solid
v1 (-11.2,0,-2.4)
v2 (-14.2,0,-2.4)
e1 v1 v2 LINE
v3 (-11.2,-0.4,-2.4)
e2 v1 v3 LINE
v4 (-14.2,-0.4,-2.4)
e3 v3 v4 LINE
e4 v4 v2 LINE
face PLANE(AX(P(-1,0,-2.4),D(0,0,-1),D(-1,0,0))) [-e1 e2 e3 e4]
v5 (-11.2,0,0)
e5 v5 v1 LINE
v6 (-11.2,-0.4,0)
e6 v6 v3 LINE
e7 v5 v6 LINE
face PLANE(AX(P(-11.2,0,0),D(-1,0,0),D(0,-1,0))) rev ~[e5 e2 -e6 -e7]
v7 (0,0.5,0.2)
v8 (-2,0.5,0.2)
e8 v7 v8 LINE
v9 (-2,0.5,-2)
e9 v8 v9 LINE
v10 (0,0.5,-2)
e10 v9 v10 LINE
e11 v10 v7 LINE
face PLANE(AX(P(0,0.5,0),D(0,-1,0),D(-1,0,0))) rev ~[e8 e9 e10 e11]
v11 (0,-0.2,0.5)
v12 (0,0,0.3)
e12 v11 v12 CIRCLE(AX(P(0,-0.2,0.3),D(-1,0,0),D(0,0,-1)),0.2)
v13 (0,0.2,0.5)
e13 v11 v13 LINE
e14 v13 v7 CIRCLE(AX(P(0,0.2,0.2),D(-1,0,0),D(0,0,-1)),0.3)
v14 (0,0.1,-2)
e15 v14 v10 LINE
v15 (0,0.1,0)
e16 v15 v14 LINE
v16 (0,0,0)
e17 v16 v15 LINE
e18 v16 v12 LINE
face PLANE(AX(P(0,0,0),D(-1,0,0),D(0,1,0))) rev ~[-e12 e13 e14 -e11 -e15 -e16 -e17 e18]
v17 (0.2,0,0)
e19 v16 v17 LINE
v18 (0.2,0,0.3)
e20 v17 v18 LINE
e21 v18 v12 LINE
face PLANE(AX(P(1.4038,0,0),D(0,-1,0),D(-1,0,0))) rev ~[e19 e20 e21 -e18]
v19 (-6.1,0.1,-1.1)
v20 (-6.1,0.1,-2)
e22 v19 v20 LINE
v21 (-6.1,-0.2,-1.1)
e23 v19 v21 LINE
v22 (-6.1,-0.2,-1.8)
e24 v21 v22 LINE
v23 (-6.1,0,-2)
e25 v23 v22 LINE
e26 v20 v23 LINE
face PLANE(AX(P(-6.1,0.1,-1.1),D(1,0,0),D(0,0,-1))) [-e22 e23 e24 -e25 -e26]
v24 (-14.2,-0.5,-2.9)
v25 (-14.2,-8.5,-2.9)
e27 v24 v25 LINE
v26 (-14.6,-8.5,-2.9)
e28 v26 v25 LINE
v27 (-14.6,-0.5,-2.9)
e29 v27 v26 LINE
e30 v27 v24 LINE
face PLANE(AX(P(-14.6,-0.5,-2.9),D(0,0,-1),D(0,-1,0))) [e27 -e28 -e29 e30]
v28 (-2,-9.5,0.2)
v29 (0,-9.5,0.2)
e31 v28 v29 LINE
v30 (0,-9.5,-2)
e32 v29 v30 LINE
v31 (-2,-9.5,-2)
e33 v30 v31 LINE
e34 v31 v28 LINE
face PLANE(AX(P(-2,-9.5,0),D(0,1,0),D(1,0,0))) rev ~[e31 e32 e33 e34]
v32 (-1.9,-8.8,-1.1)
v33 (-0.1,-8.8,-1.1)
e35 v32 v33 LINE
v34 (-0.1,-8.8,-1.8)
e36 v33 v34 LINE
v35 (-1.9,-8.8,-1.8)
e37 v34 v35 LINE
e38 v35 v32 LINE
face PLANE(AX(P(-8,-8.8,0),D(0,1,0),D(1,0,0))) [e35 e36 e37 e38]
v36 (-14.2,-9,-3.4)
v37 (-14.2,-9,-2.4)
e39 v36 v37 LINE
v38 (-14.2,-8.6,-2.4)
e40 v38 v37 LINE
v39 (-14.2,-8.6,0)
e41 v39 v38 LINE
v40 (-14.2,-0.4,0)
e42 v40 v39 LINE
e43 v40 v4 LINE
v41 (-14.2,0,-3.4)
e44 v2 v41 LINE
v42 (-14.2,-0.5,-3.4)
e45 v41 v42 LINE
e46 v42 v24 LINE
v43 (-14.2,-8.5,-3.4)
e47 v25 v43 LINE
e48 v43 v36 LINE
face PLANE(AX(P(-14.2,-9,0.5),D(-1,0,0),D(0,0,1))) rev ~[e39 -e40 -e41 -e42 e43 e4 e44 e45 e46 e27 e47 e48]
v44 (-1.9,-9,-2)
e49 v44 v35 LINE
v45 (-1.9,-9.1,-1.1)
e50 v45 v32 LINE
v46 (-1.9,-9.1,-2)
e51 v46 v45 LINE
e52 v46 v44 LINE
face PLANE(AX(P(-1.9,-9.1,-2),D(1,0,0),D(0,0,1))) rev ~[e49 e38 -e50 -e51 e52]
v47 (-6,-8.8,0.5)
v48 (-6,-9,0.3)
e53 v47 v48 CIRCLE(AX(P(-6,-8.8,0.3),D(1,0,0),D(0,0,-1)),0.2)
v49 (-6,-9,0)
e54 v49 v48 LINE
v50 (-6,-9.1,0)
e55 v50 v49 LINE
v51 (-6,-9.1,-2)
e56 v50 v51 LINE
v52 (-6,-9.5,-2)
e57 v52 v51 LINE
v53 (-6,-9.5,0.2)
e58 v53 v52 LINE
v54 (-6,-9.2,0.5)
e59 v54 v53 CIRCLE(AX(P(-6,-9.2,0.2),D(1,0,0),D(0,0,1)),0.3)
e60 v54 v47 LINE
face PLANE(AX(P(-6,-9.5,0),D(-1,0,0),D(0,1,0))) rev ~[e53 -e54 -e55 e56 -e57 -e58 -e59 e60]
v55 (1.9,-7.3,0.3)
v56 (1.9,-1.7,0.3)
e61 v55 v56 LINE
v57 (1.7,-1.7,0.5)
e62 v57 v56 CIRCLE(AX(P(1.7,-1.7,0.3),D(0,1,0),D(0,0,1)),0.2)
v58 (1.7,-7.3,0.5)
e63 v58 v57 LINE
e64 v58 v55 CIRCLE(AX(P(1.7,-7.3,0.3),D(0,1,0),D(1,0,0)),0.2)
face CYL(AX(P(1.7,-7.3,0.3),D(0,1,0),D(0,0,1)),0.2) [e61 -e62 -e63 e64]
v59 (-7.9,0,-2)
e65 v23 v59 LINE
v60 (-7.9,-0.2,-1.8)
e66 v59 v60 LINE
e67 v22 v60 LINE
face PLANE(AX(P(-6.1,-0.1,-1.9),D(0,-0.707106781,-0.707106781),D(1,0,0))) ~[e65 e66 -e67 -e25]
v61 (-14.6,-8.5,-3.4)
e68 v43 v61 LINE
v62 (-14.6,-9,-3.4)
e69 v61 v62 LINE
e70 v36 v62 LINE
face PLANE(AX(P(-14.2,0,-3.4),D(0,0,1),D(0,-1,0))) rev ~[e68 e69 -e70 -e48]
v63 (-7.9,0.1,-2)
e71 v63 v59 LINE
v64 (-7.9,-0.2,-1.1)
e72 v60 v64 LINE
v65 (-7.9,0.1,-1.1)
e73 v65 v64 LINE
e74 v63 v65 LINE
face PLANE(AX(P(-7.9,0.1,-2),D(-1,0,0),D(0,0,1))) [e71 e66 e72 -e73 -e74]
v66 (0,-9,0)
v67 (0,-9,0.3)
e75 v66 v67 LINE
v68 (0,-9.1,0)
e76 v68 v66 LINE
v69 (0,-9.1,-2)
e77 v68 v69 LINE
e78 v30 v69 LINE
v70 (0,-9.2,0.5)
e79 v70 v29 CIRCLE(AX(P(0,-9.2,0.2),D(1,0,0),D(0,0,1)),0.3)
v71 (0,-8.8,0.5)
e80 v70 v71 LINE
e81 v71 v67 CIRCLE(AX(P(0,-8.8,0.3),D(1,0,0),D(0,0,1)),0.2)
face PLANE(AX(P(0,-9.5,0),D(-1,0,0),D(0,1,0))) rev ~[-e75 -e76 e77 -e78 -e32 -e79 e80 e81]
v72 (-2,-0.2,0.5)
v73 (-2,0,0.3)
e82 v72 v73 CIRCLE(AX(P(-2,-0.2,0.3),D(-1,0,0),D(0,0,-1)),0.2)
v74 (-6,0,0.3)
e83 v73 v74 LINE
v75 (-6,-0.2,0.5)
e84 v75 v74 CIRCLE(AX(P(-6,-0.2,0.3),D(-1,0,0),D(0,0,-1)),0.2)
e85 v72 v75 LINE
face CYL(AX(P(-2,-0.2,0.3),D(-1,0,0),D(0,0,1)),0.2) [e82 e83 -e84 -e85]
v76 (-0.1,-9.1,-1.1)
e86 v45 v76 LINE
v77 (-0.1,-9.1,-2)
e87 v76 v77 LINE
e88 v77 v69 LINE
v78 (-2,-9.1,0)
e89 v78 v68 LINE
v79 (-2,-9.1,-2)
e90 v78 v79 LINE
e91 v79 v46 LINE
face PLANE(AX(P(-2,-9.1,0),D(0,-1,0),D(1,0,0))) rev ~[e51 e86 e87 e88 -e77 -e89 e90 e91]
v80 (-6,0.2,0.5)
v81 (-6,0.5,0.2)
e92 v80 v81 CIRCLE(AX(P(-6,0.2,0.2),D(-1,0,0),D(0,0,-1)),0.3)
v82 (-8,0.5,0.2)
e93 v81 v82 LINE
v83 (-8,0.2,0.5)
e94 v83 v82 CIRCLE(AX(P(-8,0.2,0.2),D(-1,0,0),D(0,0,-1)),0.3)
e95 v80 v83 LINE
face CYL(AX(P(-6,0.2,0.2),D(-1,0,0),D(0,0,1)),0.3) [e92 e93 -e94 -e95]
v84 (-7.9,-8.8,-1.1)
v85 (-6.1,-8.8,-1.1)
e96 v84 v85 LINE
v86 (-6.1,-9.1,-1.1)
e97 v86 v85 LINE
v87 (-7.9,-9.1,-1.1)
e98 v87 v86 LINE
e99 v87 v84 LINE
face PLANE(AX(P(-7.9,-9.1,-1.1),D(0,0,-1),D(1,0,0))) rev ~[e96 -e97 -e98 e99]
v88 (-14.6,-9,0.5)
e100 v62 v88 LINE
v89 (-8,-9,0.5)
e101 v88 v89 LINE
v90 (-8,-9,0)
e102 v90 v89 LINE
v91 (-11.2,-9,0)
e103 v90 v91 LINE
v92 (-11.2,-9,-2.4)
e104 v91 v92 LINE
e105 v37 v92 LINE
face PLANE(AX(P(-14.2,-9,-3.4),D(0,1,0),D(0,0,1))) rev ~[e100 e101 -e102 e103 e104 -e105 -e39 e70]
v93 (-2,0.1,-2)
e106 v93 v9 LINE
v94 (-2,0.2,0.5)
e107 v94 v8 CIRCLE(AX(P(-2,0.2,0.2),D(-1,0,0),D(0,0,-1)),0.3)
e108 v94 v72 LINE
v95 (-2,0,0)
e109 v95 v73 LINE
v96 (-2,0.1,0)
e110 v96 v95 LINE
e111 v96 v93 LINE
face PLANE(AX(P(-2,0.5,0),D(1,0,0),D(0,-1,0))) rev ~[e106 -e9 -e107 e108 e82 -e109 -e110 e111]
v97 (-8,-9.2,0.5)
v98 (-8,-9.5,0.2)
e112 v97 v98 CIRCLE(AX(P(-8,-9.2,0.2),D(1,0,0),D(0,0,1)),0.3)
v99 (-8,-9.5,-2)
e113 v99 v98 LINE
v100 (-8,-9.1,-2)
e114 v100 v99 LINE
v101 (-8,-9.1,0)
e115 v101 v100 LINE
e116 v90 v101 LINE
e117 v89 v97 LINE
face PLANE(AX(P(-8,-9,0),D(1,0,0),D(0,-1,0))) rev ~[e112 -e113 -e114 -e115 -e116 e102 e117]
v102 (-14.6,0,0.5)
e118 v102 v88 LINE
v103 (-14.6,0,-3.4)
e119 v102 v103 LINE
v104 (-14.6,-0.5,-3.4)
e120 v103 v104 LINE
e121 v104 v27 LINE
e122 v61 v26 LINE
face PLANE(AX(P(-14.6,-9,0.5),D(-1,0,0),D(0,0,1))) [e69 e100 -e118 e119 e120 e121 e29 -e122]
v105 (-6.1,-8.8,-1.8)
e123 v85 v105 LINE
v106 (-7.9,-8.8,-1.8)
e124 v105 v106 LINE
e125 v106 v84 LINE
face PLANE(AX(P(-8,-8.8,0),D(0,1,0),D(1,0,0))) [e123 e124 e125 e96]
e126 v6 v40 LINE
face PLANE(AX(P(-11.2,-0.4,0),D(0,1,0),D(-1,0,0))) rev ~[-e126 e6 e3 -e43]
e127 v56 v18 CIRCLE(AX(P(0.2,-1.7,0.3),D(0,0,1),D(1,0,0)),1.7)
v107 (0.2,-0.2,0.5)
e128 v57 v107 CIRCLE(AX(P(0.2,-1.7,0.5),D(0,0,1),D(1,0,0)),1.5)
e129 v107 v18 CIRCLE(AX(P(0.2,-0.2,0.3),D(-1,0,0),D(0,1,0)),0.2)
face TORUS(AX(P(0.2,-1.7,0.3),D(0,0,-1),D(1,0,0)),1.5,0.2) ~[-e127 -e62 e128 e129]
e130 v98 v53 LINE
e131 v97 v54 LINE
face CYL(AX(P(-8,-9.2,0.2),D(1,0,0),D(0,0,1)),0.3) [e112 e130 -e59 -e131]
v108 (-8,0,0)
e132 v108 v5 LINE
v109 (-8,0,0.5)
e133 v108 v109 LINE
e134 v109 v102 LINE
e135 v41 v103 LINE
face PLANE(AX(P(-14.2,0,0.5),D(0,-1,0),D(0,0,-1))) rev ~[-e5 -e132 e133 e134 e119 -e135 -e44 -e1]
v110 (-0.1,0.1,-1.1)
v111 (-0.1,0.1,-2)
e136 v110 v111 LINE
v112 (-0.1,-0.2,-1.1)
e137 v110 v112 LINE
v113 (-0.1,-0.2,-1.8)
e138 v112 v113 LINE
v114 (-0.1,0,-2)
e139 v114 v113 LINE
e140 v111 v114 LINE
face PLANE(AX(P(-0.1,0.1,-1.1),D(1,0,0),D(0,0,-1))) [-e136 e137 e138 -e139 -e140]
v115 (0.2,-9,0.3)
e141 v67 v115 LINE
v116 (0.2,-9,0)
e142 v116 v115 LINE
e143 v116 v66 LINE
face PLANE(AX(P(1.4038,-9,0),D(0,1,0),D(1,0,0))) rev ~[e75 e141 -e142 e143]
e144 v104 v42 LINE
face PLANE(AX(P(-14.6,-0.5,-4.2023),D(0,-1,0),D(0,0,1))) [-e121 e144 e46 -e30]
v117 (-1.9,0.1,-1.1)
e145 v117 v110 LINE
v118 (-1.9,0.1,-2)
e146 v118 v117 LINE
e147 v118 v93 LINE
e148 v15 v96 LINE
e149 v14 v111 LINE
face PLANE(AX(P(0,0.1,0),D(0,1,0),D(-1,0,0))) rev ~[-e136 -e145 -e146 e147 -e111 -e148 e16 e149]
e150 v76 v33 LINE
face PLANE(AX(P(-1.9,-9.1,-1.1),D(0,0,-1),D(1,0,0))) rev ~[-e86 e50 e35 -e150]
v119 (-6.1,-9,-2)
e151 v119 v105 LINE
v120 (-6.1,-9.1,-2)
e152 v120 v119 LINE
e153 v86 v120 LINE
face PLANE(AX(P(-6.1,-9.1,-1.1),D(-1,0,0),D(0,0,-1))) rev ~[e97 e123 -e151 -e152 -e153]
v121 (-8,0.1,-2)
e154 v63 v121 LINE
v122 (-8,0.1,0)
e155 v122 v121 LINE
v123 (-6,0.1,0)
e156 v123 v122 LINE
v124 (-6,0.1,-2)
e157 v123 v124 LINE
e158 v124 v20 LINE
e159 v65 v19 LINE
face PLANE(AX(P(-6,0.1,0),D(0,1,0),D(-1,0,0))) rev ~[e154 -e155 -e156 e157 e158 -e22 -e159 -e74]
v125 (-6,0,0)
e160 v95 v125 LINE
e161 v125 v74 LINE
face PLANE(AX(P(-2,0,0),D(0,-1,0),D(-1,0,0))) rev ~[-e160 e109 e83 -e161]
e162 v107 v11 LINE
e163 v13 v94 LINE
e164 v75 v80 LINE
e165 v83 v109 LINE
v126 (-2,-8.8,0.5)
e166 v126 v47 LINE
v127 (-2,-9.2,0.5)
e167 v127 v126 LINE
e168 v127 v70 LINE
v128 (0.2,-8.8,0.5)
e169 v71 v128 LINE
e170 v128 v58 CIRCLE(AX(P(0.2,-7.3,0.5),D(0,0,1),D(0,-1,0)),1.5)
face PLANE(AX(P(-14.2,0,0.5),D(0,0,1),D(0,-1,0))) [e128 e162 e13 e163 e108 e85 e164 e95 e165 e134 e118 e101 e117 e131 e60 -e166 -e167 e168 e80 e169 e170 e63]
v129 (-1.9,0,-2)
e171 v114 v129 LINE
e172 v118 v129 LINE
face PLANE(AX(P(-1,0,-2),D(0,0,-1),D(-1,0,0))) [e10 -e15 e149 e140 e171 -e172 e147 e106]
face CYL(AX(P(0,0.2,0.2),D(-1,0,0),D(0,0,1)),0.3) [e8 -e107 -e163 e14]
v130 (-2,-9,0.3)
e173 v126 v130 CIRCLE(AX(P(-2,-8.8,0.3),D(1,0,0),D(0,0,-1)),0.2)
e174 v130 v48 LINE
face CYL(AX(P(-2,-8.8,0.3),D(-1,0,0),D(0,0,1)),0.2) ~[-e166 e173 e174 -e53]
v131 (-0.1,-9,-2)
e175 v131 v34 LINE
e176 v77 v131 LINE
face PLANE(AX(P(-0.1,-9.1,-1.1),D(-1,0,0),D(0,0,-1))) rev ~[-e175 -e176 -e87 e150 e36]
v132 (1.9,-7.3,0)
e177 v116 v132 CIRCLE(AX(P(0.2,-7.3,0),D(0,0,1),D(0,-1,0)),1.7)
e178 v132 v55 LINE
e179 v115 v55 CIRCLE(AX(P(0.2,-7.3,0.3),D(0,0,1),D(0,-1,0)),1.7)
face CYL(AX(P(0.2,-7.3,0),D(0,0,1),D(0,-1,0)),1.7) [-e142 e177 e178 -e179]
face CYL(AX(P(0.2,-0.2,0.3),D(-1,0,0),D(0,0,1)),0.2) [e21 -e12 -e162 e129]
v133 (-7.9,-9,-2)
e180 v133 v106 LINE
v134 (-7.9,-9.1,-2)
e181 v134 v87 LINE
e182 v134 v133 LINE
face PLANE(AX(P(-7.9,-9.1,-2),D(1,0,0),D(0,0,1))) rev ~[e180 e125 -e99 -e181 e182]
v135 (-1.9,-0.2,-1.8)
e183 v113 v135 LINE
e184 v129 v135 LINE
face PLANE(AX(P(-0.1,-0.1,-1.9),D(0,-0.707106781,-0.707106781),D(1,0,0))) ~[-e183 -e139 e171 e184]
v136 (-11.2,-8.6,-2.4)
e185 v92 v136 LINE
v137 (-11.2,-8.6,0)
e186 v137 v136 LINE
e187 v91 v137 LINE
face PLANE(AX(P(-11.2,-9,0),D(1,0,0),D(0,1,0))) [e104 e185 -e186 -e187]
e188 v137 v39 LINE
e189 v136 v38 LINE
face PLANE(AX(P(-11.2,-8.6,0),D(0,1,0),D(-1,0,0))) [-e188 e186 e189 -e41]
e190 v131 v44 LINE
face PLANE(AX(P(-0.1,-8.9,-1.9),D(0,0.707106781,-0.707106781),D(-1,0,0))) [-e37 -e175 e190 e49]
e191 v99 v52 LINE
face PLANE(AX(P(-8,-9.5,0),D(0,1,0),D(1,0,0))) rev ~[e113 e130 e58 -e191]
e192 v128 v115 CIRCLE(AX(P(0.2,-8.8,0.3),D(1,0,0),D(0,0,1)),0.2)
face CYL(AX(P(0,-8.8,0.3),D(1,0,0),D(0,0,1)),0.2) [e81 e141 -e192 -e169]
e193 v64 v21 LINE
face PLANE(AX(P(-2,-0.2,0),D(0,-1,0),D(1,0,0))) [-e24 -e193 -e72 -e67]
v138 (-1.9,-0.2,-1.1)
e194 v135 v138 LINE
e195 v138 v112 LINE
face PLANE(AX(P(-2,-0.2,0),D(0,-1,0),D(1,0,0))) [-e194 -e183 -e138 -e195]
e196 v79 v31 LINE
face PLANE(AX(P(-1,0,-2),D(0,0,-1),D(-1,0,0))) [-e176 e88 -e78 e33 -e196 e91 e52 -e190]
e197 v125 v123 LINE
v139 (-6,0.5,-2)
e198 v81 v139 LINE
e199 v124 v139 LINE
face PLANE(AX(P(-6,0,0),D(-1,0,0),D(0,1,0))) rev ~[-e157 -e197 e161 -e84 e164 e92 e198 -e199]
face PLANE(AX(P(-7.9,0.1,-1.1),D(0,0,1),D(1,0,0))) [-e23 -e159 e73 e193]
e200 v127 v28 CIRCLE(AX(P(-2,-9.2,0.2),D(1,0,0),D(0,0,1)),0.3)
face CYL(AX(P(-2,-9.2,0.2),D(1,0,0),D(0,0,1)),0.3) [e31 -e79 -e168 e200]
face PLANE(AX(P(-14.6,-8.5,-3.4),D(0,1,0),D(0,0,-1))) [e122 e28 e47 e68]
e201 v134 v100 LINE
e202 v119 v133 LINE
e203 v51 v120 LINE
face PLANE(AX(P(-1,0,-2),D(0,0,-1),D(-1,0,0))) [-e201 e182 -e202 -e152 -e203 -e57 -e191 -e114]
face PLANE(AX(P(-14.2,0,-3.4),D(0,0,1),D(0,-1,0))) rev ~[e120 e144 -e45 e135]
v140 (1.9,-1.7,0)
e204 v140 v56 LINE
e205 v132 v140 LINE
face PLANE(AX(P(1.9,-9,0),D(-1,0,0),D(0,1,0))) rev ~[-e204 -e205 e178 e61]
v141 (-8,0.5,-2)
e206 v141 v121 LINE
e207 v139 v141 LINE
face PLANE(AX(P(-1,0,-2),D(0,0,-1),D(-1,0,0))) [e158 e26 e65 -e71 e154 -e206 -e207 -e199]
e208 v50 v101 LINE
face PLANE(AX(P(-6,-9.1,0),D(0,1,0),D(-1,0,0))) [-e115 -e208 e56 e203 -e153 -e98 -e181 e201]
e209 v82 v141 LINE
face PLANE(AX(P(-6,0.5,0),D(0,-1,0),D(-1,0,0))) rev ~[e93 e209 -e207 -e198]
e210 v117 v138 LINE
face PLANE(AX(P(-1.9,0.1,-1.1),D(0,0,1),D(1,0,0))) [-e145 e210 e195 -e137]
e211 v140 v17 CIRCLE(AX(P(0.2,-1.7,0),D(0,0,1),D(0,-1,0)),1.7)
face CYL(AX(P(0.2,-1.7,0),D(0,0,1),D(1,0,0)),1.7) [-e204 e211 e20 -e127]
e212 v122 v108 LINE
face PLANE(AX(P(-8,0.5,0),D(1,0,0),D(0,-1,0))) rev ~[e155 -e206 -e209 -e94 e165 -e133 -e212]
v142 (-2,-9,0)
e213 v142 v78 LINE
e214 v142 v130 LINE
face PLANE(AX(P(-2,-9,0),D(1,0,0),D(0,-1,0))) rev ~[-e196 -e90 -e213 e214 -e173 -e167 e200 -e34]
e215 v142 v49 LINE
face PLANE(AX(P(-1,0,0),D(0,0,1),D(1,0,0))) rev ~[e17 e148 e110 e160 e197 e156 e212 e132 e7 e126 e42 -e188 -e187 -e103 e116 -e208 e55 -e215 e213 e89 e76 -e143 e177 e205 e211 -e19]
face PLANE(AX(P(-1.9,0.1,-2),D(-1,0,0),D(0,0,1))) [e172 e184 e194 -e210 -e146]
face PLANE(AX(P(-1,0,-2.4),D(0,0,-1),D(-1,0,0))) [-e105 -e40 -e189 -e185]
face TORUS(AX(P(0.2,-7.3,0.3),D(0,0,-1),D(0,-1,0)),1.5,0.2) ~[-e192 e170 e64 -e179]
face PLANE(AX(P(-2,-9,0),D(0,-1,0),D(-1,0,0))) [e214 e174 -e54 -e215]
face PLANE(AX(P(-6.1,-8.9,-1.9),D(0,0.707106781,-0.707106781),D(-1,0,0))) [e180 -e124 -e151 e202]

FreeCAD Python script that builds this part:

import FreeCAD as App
import Part
import Sketcher

V = App.Vector
Q = App.Units.Quantity


def edges_at(feature, points):
    """Names of the edges that pass closest to the given points."""
    edges = feature.Shape.Edges
    near = lambda p: min(range(len(edges)), key=lambda i: edges[i].distToShape(Part.Vertex(*p))[0])
    return sorted({f"Edge{near(p) + 1}" for p in points})

doc = App.newDocument("Part")
params = doc.addObject("Spreadsheet::Sheet", "Params")
for row, (alias, value) in enumerate([
    ("sketch1_height", "0.5 mm"),
    ("sketch1_width", "2 mm"),
    ("sketch1_width2", "4 mm"),
    ("sketch1_height2", "9 mm"),
    ("sketch1_width3", "6.2 mm"),
    ("pad1_length", "0.5 mm"),
    ("sketch2_width", "2 mm"),
    ("sketch2_height", "0.4 mm"),
    ("pad2_length", "2 mm"),
    ("sketch3_width", "3 mm"),
    ("sketch3_height", "0.4 mm"),
    ("pad3_length", "2.4 mm"),
    ("sketch4_width", "9 mm"),
    ("sketch4_height", "3.9 mm"),
    ("pad4_length", "0.4 mm"),
    ("fillet_radius", "0.3 mm"),
    ("fillet2_radius", "1.7 mm"),
    ("sketch5_width", "1.8 mm"),
    ("sketch5_height", "0.9 mm"),
    ("pad5_length", "0.3 mm"),
    ("sketch6_width", "1.8 mm"),
    ("sketch6_height", "0.9 mm"),
    ("pad6_length", "0.3 mm"),
    ("chamfer_size", "0.2 mm"),
    ("fillet3_radius", "0.2 mm"),
    ("sketch7_width", "8 mm"),
    ("pocket1_length", "10 mm"),
], start=1):
    params.set(f"A{row}", alias)
    params.set(f"B{row}", "=" + value)
    params.setAlias(f"B{row}", alias)

body = doc.addObject("PartDesign::Body", "Body")

# Sketch on XY plane
sketch1 = doc.addObject("Sketcher::SketchObject", "Sketch")
body.addObject(sketch1)
sketch1.AttachmentSupport = (doc.XY_Plane, [""])
sketch1.MapMode = "FlatFace"
sketch1.addGeometry([
    Part.LineSegment(V(-8, 0.5, 0), V(-8, 0, 0)),  # 0
    Part.LineSegment(V(-8, 0, 0), V(-14.2, 0, 0)),  # 1
    Part.LineSegment(V(-14.2, 0, 0), V(-14.2, -9, 0)),  # 2
    Part.LineSegment(V(-14.2, -9, 0), V(-8, -9, 0)),  # 3
    Part.LineSegment(V(-8, -9, 0), V(-8, -9.5, 0)),  # 4
    Part.LineSegment(V(-8, -9.5, 0), V(-6, -9.5, 0)),  # 5
    Part.LineSegment(V(-6, -9.5, 0), V(-6, -9, 0)),  # 6
    Part.LineSegment(V(-6, -9, 0), V(-2, -9, 0)),  # 7
    Part.LineSegment(V(-2, -9, 0), V(-2, -9.5, 0)),  # 8
    Part.LineSegment(V(-2, -9.5, 0), V(0, -9.5, 0)),  # 9
    Part.LineSegment(V(0, -9.5, 0), V(0, -9, 0)),  # 10
    Part.LineSegment(V(0, -9, 0), V(1.9, -9, 0)),  # 11
    Part.LineSegment(V(1.9, -9, 0), V(1.9, 0, 0)),  # 12
    Part.LineSegment(V(1.9, 0, 0), V(0, 0, 0)),  # 13
    Part.LineSegment(V(0, 0, 0), V(0, 0.5, 0)),  # 14
    Part.LineSegment(V(0, 0.5, 0), V(-2, 0.5, 0)),  # 15
    Part.LineSegment(V(-2, 0.5, 0), V(-2, 0, 0)),  # 16
    Part.LineSegment(V(-2, 0, 0), V(-6, 0, 0)),  # 17
    Part.LineSegment(V(-6, 0, 0), V(-6, 0.5, 0)),  # 18
    Part.LineSegment(V(-6, 0.5, 0), V(-8, 0.5, 0)),  # 19
], False)
sketch1.addConstraint([
    Sketcher.Constraint("Coincident", 0, 2, 1, 1),
    Sketcher.Constraint("Coincident", 1, 2, 2, 1),
    Sketcher.Constraint("Coincident", 2, 2, 3, 1),
    Sketcher.Constraint("Coincident", 3, 2, 4, 1),
    Sketcher.Constraint("Coincident", 4, 2, 5, 1),
    Sketcher.Constraint("Coincident", 5, 2, 6, 1),
    Sketcher.Constraint("Coincident", 6, 2, 7, 1),
    Sketcher.Constraint("Coincident", 7, 2, 8, 1),
    Sketcher.Constraint("Coincident", 8, 2, 9, 1),
    Sketcher.Constraint("Coincident", 9, 2, 10, 1),
    Sketcher.Constraint("Coincident", 10, 2, 11, 1),
    Sketcher.Constraint("Coincident", 11, 2, 12, 1),
    Sketcher.Constraint("Coincident", 12, 2, 13, 1),
    Sketcher.Constraint("Coincident", 13, 2, 14, 1),
    Sketcher.Constraint("Coincident", 14, 2, 15, 1),
    Sketcher.Constraint("Coincident", 15, 2, 16, 1),
    Sketcher.Constraint("Coincident", 16, 2, 17, 1),
    Sketcher.Constraint("Coincident", 17, 2, 18, 1),
    Sketcher.Constraint("Coincident", 18, 2, 19, 1),
    Sketcher.Constraint("Coincident", 19, 2, 0, 1),
    Sketcher.Constraint("Vertical", 0),
    Sketcher.Constraint("Horizontal", 1),
    Sketcher.Constraint("Vertical", 2),
    Sketcher.Constraint("Horizontal", 3),
    Sketcher.Constraint("Vertical", 4),
    Sketcher.Constraint("Horizontal", 5),
    Sketcher.Constraint("Vertical", 6),
    Sketcher.Constraint("Horizontal", 7),
    Sketcher.Constraint("Vertical", 8),
    Sketcher.Constraint("Horizontal", 9),
    Sketcher.Constraint("Vertical", 10),
    Sketcher.Constraint("Horizontal", 11),
    Sketcher.Constraint("Vertical", 12),
    Sketcher.Constraint("Horizontal", 13),
    Sketcher.Constraint("Vertical", 14),
    Sketcher.Constraint("Horizontal", 15),
    Sketcher.Constraint("Vertical", 16),
    Sketcher.Constraint("Horizontal", 17),
    Sketcher.Constraint("Vertical", 18),
    Sketcher.Constraint("Horizontal", 19),
    Sketcher.Constraint("Coincident", 13, 2, -1, 1),
    Sketcher.Constraint("PointOnObject", 0, 2, -1),
    Sketcher.Constraint("PointOnObject", 9, 2, -2),
    Sketcher.Constraint("PointOnObject", 16, 2, -1),
    Sketcher.Constraint("Horizontal", 3, 2, 6, 2),
    Sketcher.Constraint("Horizontal", 5, 2, 8, 2),
    Sketcher.Constraint("Horizontal", 7, 2, 10, 2),
    Sketcher.Constraint("Horizontal", 15, 2, 18, 2),
    Sketcher.Constraint("Vertical", 0, 2, 3, 2),
    Sketcher.Constraint("Vertical", 8, 2, 15, 2),
    Sketcher.Constraint("Vertical", 6, 2, 17, 2),
    Sketcher.Constraint("Equal", 5, 9),
    Sketcher.Constraint("Equal", 0, 4),
    Sketcher.Constraint("DistanceY", 0, 2, 0, 1, Q("0.5 mm")),
    Sketcher.Constraint("DistanceX", 5, 1, 5, 2, Q("2 mm")),
    Sketcher.Constraint("DistanceX", 7, 1, 7, 2, Q("4 mm")),
    Sketcher.Constraint("DistanceY", 2, 2, 2, 1, Q("9 mm")),
    Sketcher.Constraint("DistanceX", 1, 2, 1, 1, Q("6.2 mm")),
    Sketcher.Constraint("DistanceX", 11, 1, 11, 2, Q("1.9 mm")),
])
sketch1.setExpression("Constraints[53]", "Params.sketch1_height")
sketch1.setExpression("Constraints[54]", "Params.sketch1_width")
sketch1.setExpression("Constraints[55]", "Params.sketch1_width2")
sketch1.setExpression("Constraints[56]", "Params.sketch1_height2")
sketch1.setExpression("Constraints[57]", "Params.sketch1_width3")
pad1 = doc.addObject("PartDesign::Pad", "Pad")
body.addObject(pad1)
pad1.Profile = sketch1
pad1.setExpression("Length", "Params.pad1_length")

# Sketch on XY plane
sketch2 = doc.addObject("Sketcher::SketchObject", "Sketch001")
body.addObject(sketch2)
sketch2.AttachmentSupport = (doc.XY_Plane, [""])
sketch2.MapMode = "FlatFace"
sketch2.addGeometry([
    Part.LineSegment(V(-6, 0.1, 0), V(-8, 0.1, 0)),  # 0
    Part.LineSegment(V(-8, 0.1, 0), V(-8, 0.5, 0)),  # 1
    Part.LineSegment(V(-8, 0.5, 0), V(-6, 0.5, 0)),  # 2
    Part.LineSegment(V(-6, 0.5, 0), V(-6, 0.1, 0)),  # 3
    Part.LineSegment(V(0, 0.1, 0), V(-2, 0.1, 0)),  # 4
    Part.LineSegment(V(-2, 0.1, 0), V(-2, 0.5, 0)),  # 5
    Part.LineSegment(V(-2, 0.5, 0), V(0, 0.5, 0)),  # 6
    Part.LineSegment(V(0, 0.5, 0), V(0, 0.1, 0)),  # 7
    Part.LineSegment(V(-8, -9.5, 0), V(-8, -9.1, 0)),  # 8
    Part.LineSegment(V(-8, -9.1, 0), V(-6, -9.1, 0)),  # 9
    Part.LineSegment(V(-6, -9.1, 0), V(-6, -9.5, 0)),  # 10
    Part.LineSegment(V(-6, -9.5, 0), V(-8, -9.5, 0)),  # 11
    Part.LineSegment(V(-2, -9.1, 0), V(0, -9.1, 0)),  # 12
    Part.LineSegment(V(0, -9.1, 0), V(0, -9.5, 0)),  # 13
    Part.LineSegment(V(0, -9.5, 0), V(-2, -9.5, 0)),  # 14
    Part.LineSegment(V(-2, -9.5, 0), V(-2, -9.1, 0)),  # 15
], False)
sketch2.addConstraint([
    Sketcher.Constraint("Coincident", 0, 2, 1, 1),
    Sketcher.Constraint("Coincident", 1, 2, 2, 1),
    Sketcher.Constraint("Coincident", 2, 2, 3, 1),
    Sketcher.Constraint("Coincident", 3, 2, 0, 1),
    Sketcher.Constraint("Coincident", 4, 2, 5, 1),
    Sketcher.Constraint("Coincident", 5, 2, 6, 1),
    Sketcher.Constraint("Coincident", 6, 2, 7, 1),
    Sketcher.Constraint("Coincident", 7, 2, 4, 1),
    Sketcher.Constraint("Coincident", 8, 2, 9, 1),
    Sketcher.Constraint("Coincident", 9, 2, 10, 1),
    Sketcher.Constraint("Coincident", 10, 2, 11, 1),
    Sketcher.Constraint("Coincident", 11, 2, 8, 1),
    Sketcher.Constraint("Coincident", 12, 2, 13, 1),
    Sketcher.Constraint("Coincident", 13, 2, 14, 1),
    Sketcher.Constraint("Coincident", 14, 2, 15, 1),
    Sketcher.Constraint("Coincident", 15, 2, 12, 1),
    Sketcher.Constraint("Horizontal", 0),
    Sketcher.Constraint("Vertical", 1),
    Sketcher.Constraint("Horizontal", 2),
    Sketcher.Constraint("Vertical", 3),
    Sketcher.Constraint("Horizontal", 4),
    Sketcher.Constraint("Vertical", 5),
    Sketcher.Constraint("Horizontal", 6),
    Sketcher.Constraint("Vertical", 7),
    Sketcher.Constraint("Vertical", 8),
    Sketcher.Constraint("Horizontal", 9),
    Sketcher.Constraint("Vertical", 10),
    Sketcher.Constraint("Horizontal", 11),
    Sketcher.Constraint("Horizontal", 12),
    Sketcher.Constraint("Vertical", 13),
    Sketcher.Constraint("Horizontal", 14),
    Sketcher.Constraint("Vertical", 15),
    Sketcher.Constraint("PointOnObject", 6, 2, -2),
    Sketcher.Constraint("PointOnObject", 12, 2, -2),
    Sketcher.Constraint("Horizontal", 3, 2, 4, 2),
    Sketcher.Constraint("Horizontal", 2, 2, 5, 2),
    Sketcher.Constraint("Horizontal", 9, 2, 12, 2),
    Sketcher.Constraint("Horizontal", 11, 2, 13, 2),
    Sketcher.Constraint("Vertical", 1, 2, 8, 2),
    Sketcher.Constraint("Vertical", 3, 2, 9, 2),
    Sketcher.Constraint("Vertical", 5, 2, 14, 2),
    Sketcher.Constraint("Equal", 2, 4),
    Sketcher.Constraint("Equal", 7, 8),
    Sketcher.Constraint("DistanceY", -1, 1, 0, 2, Q("0.1 mm")),
    Sketcher.Constraint("DistanceX", 0, 2, 0, 1, Q("2 mm")),
    Sketcher.Constraint("DistanceY", 1, 1, 1, 2, Q("0.4 mm")),
    Sketcher.Constraint("DistanceX", 0, 2, -1, 1, Q("8 mm")),
    Sketcher.Constraint("DistanceY", 10, 2, 2, 2, Q("10 mm")),
])
sketch2.setExpression("Constraints[44]", "Params.sketch2_width")
sketch2.setExpression("Constraints[45]", "Params.sketch2_height")
pad2 = doc.addObject("PartDesign::Pad", "Pad001")
body.addObject(pad2)
pad2.Profile = sketch2
pad2.setExpression("Length", "Params.pad2_length")
pad2.Reversed = True

# Sketch on XY plane
sketch3 = doc.addObject("Sketcher::SketchObject", "Sketch002")
body.addObject(sketch3)
sketch3.AttachmentSupport = (doc.XY_Plane, [""])
sketch3.MapMode = "FlatFace"
sketch3.addGeometry([
    Part.LineSegment(V(-14.2, 0, 0), V(-11.2, 0, 0)),  # 0
    Part.LineSegment(V(-11.2, 0, 0), V(-11.2, -0.4, 0)),  # 1
    Part.LineSegment(V(-11.2, -0.4, 0), V(-14.2, -0.4, 0)),  # 2
    Part.LineSegment(V(-14.2, -0.4, 0), V(-14.2, 0, 0)),  # 3
    Part.LineSegment(V(-11.2, -9, 0), V(-14.2, -9, 0)),  # 4
    Part.LineSegment(V(-14.2, -9, 0), V(-14.2, -8.6, 0)),  # 5
    Part.LineSegment(V(-14.2, -8.6, 0), V(-11.2, -8.6, 0)),  # 6
    Part.LineSegment(V(-11.2, -8.6, 0), V(-11.2, -9, 0)),  # 7
], False)
sketch3.addConstraint([
    Sketcher.Constraint("Coincident", 0, 2, 1, 1),
    Sketcher.Constraint("Coincident", 1, 2, 2, 1),
    Sketcher.Constraint("Coincident", 2, 2, 3, 1),
    Sketcher.Constraint("Coincident", 3, 2, 0, 1),
    Sketcher.Constraint("Coincident", 4, 2, 5, 1),
    Sketcher.Constraint("Coincident", 5, 2, 6, 1),
    Sketcher.Constraint("Coincident", 6, 2, 7, 1),
    Sketcher.Constraint("Coincident", 7, 2, 4, 1),
    Sketcher.Constraint("Horizontal", 0),
    Sketcher.Constraint("Vertical", 1),
    Sketcher.Constraint("Horizontal", 2),
    Sketcher.Constraint("Vertical", 3),
    Sketcher.Constraint("Horizontal", 4),
    Sketcher.Constraint("Vertical", 5),
    Sketcher.Constraint("Horizontal", 6),
    Sketcher.Constraint("Vertical", 7),
    Sketcher.Constraint("PointOnObject", 0, 2, -1),
    Sketcher.Constraint("Vertical", 3, 2, 4, 2),
    Sketcher.Constraint("Vertical", 1, 2, 6, 2),
    Sketcher.Constraint("Equal", 3, 5),
    Sketcher.Constraint("DistanceX", 0, 1, 0, 2, Q("3 mm")),
    Sketcher.Constraint("DistanceY", 1, 2, 1, 1, Q("0.4 mm")),
    Sketcher.Constraint("DistanceY", 4, 2, -1, 1, Q("9 mm")),
    Sketcher.Constraint("DistanceX", 0, 2, -1, 1, Q("11.2 mm")),
])
sketch3.setExpression("Constraints[20]", "Params.sketch3_width")
sketch3.setExpression("Constraints[21]", "Params.sketch3_height")
pad3 = doc.addObject("PartDesign::Pad", "Pad002")
body.addObject(pad3)
pad3.Profile = sketch3
pad3.setExpression("Length", "Params.pad3_length")
pad3.Reversed = True

# Sketch on YZ plane
sketch4 = doc.addObject("Sketcher::SketchObject", "Sketch003")
body.addObject(sketch4)
sketch4.AttachmentSupport = (doc.YZ_Plane, [""])
sketch4.MapMode = "FlatFace"
sketch4.AttachmentOffset = App.Placement(V(0, 0, -14.2), App.Rotation())
sketch4.addGeometry([
    Part.LineSegment(V(-9, 0.5, 0), V(0, 0.5, 0)),
    Part.LineSegment(V(0, 0.5, 0), V(0, -3.4, 0)),
    Part.LineSegment(V(0, -3.4, 0), V(-9, -3.4, 0)),
    Part.LineSegment(V(-9, -3.4, 0), V(-9, 0.5, 0)),
], False)
sketch4.addConstraint([
    Sketcher.Constraint("Coincident", 0, 2, 1, 1),
    Sketcher.Constraint("Coincident", 1, 2, 2, 1),
    Sketcher.Constraint("Coincident", 2, 2, 3, 1),
    Sketcher.Constraint("Coincident", 3, 2, 0, 1),
    Sketcher.Constraint("Horizontal", 0),
    Sketcher.Constraint("Vertical", 1),
    Sketcher.Constraint("Horizontal", 2),
    Sketcher.Constraint("Vertical", 3),
    Sketcher.Constraint("PointOnObject", 0, 2, -2),
    Sketcher.Constraint("DistanceX", 0, 1, 0, 2, Q("9 mm")),
    Sketcher.Constraint("DistanceY", 1, 2, 1, 1, Q("3.9 mm")),
    Sketcher.Constraint("DistanceY", -1, 1, 0, 2, Q("0.5 mm")),
])
sketch4.setExpression("Constraints[9]", "Params.sketch4_width")
sketch4.setExpression("Constraints[10]", "Params.sketch4_height")
pad4 = doc.addObject("PartDesign::Pad", "Pad003")
body.addObject(pad4)
pad4.Profile = sketch4
pad4.setExpression("Length", "Params.pad4_length")
pad4.Reversed = True
doc.recompute()

fillet = doc.addObject("PartDesign::Fillet", "Fillet")
body.addObject(fillet)
fillet.Base = (pad4, edges_at(pad4, [
    (-1, -9.5, 0.5),
    (-1, 0.5, 0.5),
    (-7, 0.5, 0.5),
    (-7, -9.5, 0.5),
]))
fillet.setExpression("Radius", "Params.fillet_radius")
doc.recompute()

fillet2 = doc.addObject("PartDesign::Fillet", "Fillet001")
body.addObject(fillet2)
fillet2.Base = (fillet, edges_at(fillet, [(1.9, 0, 0.25), (1.9, -9, 0.25)]))
fillet2.setExpression("Radius", "Params.fillet2_radius")

# Sketch on XZ plane
sketch5 = doc.addObject("Sketcher::SketchObject", "Sketch004")
body.addObject(sketch5)
sketch5.AttachmentSupport = (doc.XZ_Plane, [""])
sketch5.MapMode = "FlatFace"
sketch5.AttachmentOffset = App.Placement(V(0, 0, 9.1), App.Rotation())
sketch5.addGeometry([
    Part.LineSegment(V(-7.9, -2, 0), V(-7.9, -1.1, 0)),  # 0
    Part.LineSegment(V(-7.9, -1.1, 0), V(-6.1, -1.1, 0)),  # 1
    Part.LineSegment(V(-6.1, -1.1, 0), V(-6.1, -2, 0)),  # 2
    Part.LineSegment(V(-6.1, -2, 0), V(-7.9, -2, 0)),  # 3
    Part.LineSegment(V(-1.9, -2, 0), V(-1.9, -1.1, 0)),  # 4
    Part.LineSegment(V(-1.9, -1.1, 0), V(-0.1, -1.1, 0)),  # 5
    Part.LineSegment(V(-0.1, -1.1, 0), V(-0.1, -2, 0)),  # 6
    Part.LineSegment(V(-0.1, -2, 0), V(-1.9, -2, 0)),  # 7
], False)
sketch5.addConstraint([
    Sketcher.Constraint("Coincident", 0, 2, 1, 1),
    Sketcher.Constraint("Coincident", 1, 2, 2, 1),
    Sketcher.Constraint("Coincident", 2, 2, 3, 1),
    Sketcher.Constraint("Coincident", 3, 2, 0, 1),
    Sketcher.Constraint("Coincident", 4, 2, 5, 1),
    Sketcher.Constraint("Coincident", 5, 2, 6, 1),
    Sketcher.Constraint("Coincident", 6, 2, 7, 1),
    Sketcher.Constraint("Coincident", 7, 2, 4, 1),
    Sketcher.Constraint("Vertical", 0),
    Sketcher.Constraint("Horizontal", 1),
    Sketcher.Constraint("Vertical", 2),
    Sketcher.Constraint("Horizontal", 3),
    Sketcher.Constraint("Vertical", 4),
    Sketcher.Constraint("Horizontal", 5),
    Sketcher.Constraint("Vertical", 6),
    Sketcher.Constraint("Horizontal", 7),
    Sketcher.Constraint("Horizontal", 1, 2, 4, 2),
    Sketcher.Constraint("Horizontal", 3, 2, 6, 2),
    Sketcher.Constraint("Equal", 3, 5),
    Sketcher.Constraint("DistanceX", 5, 2, -1, 1, Q("0.1 mm")),
    Sketcher.Constraint("DistanceX", 1, 1, 1, 2, Q("1.8 mm")),
    Sketcher.Constraint("DistanceY", 0, 1, 0, 2, Q("0.9 mm")),
    Sketcher.Constraint("DistanceY", 2, 2, -1, 1, Q("2 mm")),
    Sketcher.Constraint("DistanceX", 0, 2, 4, 2, Q("6 mm")),
])
sketch5.setExpression("Constraints[20]", "Params.sketch5_width")
sketch5.setExpression("Constraints[21]", "Params.sketch5_height")
pad5 = doc.addObject("PartDesign::Pad", "Pad004")
body.addObject(pad5)
pad5.Profile = sketch5
pad5.setExpression("Length", "Params.pad5_length")
pad5.Reversed = True

# Sketch on XZ plane
sketch6 = doc.addObject("Sketcher::SketchObject", "Sketch005")
body.addObject(sketch6)
sketch6.AttachmentSupport = (doc.XZ_Plane, [""])
sketch6.MapMode = "FlatFace"
sketch6.AttachmentOffset = App.Placement(V(0, 0, -0.1), App.Rotation())
sketch6.addGeometry([
    Part.LineSegment(V(-1.9, -2, 0), V(-0.1, -2, 0)),  # 0
    Part.LineSegment(V(-0.1, -2, 0), V(-0.1, -1.1, 0)),  # 1
    Part.LineSegment(V(-0.1, -1.1, 0), V(-1.9, -1.1, 0)),  # 2
    Part.LineSegment(V(-1.9, -1.1, 0), V(-1.9, -2, 0)),  # 3
    Part.LineSegment(V(-6.1, -2, 0), V(-6.1, -1.1, 0)),  # 4
    Part.LineSegment(V(-6.1, -1.1, 0), V(-7.9, -1.1, 0)),  # 5
    Part.LineSegment(V(-7.9, -1.1, 0), V(-7.9, -2, 0)),  # 6
    Part.LineSegment(V(-7.9, -2, 0), V(-6.1, -2, 0)),  # 7
], False)
sketch6.addConstraint([
    Sketcher.Constraint("Coincident", 0, 2, 1, 1),
    Sketcher.Constraint("Coincident", 1, 2, 2, 1),
    Sketcher.Constraint("Coincident", 2, 2, 3, 1),
    Sketcher.Constraint("Coincident", 3, 2, 0, 1),
    Sketcher.Constraint("Coincident", 4, 2, 5, 1),
    Sketcher.Constraint("Coincident", 5, 2, 6, 1),
    Sketcher.Constraint("Coincident", 6, 2, 7, 1),
    Sketcher.Constraint("Coincident", 7, 2, 4, 1),
    Sketcher.Constraint("Horizontal", 0),
    Sketcher.Constraint("Vertical", 1),
    Sketcher.Constraint("Horizontal", 2),
    Sketcher.Constraint("Vertical", 3),
    Sketcher.Constraint("Vertical", 4),
    Sketcher.Constraint("Horizontal", 5),
    Sketcher.Constraint("Vertical", 6),
    Sketcher.Constraint("Horizontal", 7),
    Sketcher.Constraint("Horizontal", 2, 2, 4, 2),
    Sketcher.Constraint("Horizontal", 3, 2, 6, 2),
    Sketcher.Constraint("Equal", 2, 5),
    Sketcher.Constraint("DistanceX", 0, 1, 0, 2, Q("1.8 mm")),
    Sketcher.Constraint("DistanceY", 1, 1, 1, 2, Q("0.9 mm")),
    Sketcher.Constraint("DistanceY", 0, 2, -1, 1, Q("2 mm")),
    Sketcher.Constraint("DistanceX", 4, 2, 1, 2, Q("6 mm")),
    Sketcher.Constraint("DistanceX", 0, 2, -1, 1, Q("0.1 mm")),
])
sketch6.setExpression("Constraints[19]", "Params.sketch6_width")
sketch6.setExpression("Constraints[20]", "Params.sketch6_height")
pad6 = doc.addObject("PartDesign::Pad", "Pad005")
body.addObject(pad6)
pad6.Profile = sketch6
pad6.setExpression("Length", "Params.pad6_length")
doc.recompute()

chamfer = doc.addObject("PartDesign::Chamfer", "Chamfer")
body.addObject(chamfer)
chamfer.Base = (pad6, edges_at(pad6, [
    (-1, -8.8, -2),
    (-7, -8.8, -2),
    (-7, -0.2, -2),
    (-1, -0.2, -2),
]))
chamfer.setExpression("Size", "Params.chamfer_size")
doc.recompute()

fillet3 = doc.addObject("PartDesign::Fillet", "Fillet002")
body.addObject(fillet3)
fillet3.Base = (chamfer, edges_at(chamfer, [
    (1.402, -0.498, 0.5),
    (1.402, -8.502, 0.5),
    (1.9, -4.5, 0.5),
    (-4, -9, 0.5),
    (-4, 0, 0.5),
]))
fillet3.setExpression("Radius", "Params.fillet3_radius")

# Sketch on YZ plane
sketch7 = doc.addObject("Sketcher::SketchObject", "Sketch006")
body.addObject(sketch7)
sketch7.AttachmentSupport = (doc.YZ_Plane, [""])
sketch7.MapMode = "FlatFace"
sketch7.AttachmentOffset = App.Placement(V(0, 0, -14.6), App.Rotation())
sketch7.addGeometry([
    Part.LineSegment(V(-0.5, -4.2, 0), V(-8.5, -4.2, 0)),
    Part.LineSegment(V(-8.5, -4.2, 0), V(-8.5, -2.9, 0)),
    Part.LineSegment(V(-8.5, -2.9, 0), V(-0.5, -2.9, 0)),
    Part.LineSegment(V(-0.5, -2.9, 0), V(-0.5, -4.2, 0)),
], False)
sketch7.addConstraint([
    Sketcher.Constraint("Coincident", 0, 2, 1, 1),
    Sketcher.Constraint("Coincident", 1, 2, 2, 1),
    Sketcher.Constraint("Coincident", 2, 2, 3, 1),
    Sketcher.Constraint("Coincident", 3, 2, 0, 1),
    Sketcher.Constraint("Horizontal", 0),
    Sketcher.Constraint("Vertical", 1),
    Sketcher.Constraint("Horizontal", 2),
    Sketcher.Constraint("Vertical", 3),
    Sketcher.Constraint("DistanceX", 0, 2, 0, 1, Q("8 mm")),
    Sketcher.Constraint("DistanceX", 2, 2, -1, 1, Q("0.5 mm")),
    Sketcher.Constraint("DistanceY", 1, 2, -1, 1, Q("2.9 mm")),
    Sketcher.Constraint("DistanceY", 1, 1, 1, 2, Q("1.3023 mm")),
])
sketch7.setExpression("Constraints[8]", "Params.sketch7_width")
pocket1 = doc.addObject("PartDesign::Pocket", "Pocket")
body.addObject(pocket1)
pocket1.Profile = sketch7
pocket1.setExpression("Length", "Params.pocket1_length")
pocket1.Reversed = True

doc.recompute()
